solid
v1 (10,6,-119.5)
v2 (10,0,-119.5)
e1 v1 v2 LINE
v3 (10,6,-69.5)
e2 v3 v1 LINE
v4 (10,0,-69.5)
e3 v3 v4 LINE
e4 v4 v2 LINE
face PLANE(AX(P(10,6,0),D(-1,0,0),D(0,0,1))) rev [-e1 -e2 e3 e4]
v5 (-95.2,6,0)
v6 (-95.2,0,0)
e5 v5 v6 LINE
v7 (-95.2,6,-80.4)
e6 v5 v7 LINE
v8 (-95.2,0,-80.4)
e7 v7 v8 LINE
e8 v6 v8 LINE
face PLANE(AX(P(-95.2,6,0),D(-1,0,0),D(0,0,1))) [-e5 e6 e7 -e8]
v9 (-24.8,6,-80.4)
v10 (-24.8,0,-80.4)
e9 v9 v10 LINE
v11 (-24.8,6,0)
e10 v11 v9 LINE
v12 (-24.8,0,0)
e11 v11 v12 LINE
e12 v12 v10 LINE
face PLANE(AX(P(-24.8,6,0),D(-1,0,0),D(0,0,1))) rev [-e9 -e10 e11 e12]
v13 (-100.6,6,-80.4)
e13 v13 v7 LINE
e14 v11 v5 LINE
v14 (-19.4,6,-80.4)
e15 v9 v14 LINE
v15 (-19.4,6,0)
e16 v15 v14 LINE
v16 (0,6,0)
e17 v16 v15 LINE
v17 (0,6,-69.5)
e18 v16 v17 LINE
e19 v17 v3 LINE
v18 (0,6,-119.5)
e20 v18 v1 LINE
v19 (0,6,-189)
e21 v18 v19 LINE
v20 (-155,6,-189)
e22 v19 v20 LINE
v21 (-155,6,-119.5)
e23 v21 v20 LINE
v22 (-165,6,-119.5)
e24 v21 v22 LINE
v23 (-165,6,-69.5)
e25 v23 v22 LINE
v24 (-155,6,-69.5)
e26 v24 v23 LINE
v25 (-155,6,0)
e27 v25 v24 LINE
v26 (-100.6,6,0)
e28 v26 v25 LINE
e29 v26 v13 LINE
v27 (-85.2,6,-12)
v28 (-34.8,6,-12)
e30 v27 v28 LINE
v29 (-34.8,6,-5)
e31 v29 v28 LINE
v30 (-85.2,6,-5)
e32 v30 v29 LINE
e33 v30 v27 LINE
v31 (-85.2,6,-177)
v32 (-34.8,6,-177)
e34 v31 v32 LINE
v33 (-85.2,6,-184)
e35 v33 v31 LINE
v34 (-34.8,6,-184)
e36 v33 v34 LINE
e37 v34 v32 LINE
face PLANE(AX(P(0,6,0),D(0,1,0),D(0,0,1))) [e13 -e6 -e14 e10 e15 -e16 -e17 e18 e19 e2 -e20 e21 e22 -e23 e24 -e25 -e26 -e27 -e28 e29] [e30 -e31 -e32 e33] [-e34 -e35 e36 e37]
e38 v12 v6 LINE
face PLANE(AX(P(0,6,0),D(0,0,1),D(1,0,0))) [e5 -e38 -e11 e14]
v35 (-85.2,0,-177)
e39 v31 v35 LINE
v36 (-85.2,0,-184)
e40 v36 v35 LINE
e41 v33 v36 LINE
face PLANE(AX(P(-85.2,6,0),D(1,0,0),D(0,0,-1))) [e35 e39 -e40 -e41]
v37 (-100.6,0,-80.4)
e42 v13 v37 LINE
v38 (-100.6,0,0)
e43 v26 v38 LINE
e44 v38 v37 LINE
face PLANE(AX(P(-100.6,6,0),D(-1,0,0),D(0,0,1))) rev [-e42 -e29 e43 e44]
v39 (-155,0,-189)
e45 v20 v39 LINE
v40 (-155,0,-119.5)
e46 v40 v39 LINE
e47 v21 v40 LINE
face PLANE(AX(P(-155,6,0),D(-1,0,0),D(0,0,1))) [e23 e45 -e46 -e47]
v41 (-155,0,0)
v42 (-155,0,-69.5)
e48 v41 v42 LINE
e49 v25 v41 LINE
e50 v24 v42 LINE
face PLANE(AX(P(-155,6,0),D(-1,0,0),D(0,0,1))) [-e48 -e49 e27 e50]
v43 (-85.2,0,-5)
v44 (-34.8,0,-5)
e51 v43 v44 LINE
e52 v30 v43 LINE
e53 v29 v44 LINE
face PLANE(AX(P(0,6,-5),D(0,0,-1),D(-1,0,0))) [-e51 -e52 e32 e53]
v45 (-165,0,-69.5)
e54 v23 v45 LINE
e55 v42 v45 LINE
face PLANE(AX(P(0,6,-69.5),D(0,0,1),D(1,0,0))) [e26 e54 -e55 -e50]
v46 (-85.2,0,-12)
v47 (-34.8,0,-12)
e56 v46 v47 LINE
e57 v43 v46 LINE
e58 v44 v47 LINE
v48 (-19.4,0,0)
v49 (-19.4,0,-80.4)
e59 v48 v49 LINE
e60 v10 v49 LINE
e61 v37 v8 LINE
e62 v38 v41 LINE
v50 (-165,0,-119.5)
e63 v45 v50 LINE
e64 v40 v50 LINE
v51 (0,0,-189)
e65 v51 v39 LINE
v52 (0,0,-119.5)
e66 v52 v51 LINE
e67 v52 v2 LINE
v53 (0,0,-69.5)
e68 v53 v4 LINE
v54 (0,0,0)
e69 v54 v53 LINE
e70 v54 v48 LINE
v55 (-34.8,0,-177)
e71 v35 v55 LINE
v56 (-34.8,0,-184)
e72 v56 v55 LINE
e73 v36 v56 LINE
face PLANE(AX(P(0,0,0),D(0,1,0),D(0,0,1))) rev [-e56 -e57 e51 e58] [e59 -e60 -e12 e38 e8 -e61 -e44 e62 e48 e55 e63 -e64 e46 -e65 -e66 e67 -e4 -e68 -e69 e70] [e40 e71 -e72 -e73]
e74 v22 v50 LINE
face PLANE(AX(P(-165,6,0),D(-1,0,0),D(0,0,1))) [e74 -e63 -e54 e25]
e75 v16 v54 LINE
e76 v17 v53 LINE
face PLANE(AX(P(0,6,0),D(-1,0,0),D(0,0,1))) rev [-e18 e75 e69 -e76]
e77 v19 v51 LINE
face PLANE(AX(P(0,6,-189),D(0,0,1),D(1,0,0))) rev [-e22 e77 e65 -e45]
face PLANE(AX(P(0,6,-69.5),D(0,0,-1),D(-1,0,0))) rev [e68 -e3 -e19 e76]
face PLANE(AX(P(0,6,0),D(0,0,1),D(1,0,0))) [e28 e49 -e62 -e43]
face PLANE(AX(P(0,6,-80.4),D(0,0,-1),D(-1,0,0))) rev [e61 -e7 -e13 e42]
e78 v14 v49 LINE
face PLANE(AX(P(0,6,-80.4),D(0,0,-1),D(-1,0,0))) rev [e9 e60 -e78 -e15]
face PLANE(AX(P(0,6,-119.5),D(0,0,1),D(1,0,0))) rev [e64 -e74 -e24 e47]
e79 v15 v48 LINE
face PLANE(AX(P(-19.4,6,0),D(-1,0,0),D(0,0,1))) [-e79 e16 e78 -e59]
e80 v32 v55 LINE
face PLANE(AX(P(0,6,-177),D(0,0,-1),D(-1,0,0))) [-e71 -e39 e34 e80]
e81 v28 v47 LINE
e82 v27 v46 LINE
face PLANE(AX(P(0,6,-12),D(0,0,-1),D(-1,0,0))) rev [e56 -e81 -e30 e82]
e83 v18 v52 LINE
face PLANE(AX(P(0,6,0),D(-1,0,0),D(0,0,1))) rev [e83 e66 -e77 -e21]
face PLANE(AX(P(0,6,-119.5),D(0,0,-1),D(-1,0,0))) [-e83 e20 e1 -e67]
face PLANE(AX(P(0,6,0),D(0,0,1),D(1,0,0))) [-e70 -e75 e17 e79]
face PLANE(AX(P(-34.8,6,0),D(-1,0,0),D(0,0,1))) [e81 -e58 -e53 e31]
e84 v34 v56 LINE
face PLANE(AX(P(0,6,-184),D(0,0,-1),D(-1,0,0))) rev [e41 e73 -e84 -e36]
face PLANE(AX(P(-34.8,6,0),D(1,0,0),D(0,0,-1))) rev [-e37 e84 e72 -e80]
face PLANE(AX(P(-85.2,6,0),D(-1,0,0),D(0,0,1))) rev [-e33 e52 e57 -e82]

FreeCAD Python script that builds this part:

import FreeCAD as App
import Part
import Sketcher
Q = App.Units.Quantity

doc = App.newDocument("Part")
params = doc.addObject("Spreadsheet::Sheet", "Params")
for row, (alias, value) in enumerate([
    ("sketch1_width", "10 mm"),
    ("sketch1_width2", "155 mm"),
    ("sketch1_height", "50 mm"),
    ("sketch1_height2", "7 mm"),
    ("sketch1_width3", "19.4 mm"),
    ("pad1_length", "6 mm"),
], start=1):
    params.set(f"A{row}", alias)
    params.set(f"B{row}", "=" + value)
    params.setAlias(f"B{row}", alias)

body = doc.addObject("PartDesign::Body", "Body")

sketch1 = doc.addObject("Sketcher::SketchObject", "Sketch")
body.addObject(sketch1)
sketch1.AttachmentSupport = (doc.XZ_Plane, [""])
sketch1.MapMode = "FlatFace"
sketch1.addGeometry([
    Part.LineSegment(App.Vector(-19, 0, 0), App.Vector(0, 0, 0)),
    Part.LineSegment(App.Vector(0, 0, 0), App.Vector(0, -70, 0)),
    Part.LineSegment(App.Vector(0, -70, 0), App.Vector(10, -70, 0)),
    Part.LineSegment(App.Vector(10, -70, 0), App.Vector(10, -120, 0)),
    Part.LineSegment(App.Vector(10, -120, 0), App.Vector(0, -120, 0)),
    Part.LineSegment(App.Vector(0, -120, 0), App.Vector(0, -189, 0)),
    Part.LineSegment(App.Vector(0, -189, 0), App.Vector(-155, -189, 0)),
    Part.LineSegment(App.Vector(-155, -189, 0), App.Vector(-155, -120, 0)),
    Part.LineSegment(App.Vector(-155, -120, 0), App.Vector(-165, -120, 0)),
    Part.LineSegment(App.Vector(-165, -120, 0), App.Vector(-165, -70, 0)),
    Part.LineSegment(App.Vector(-165, -70, 0), App.Vector(-155, -70, 0)),
    Part.LineSegment(App.Vector(-155, -70, 0), App.Vector(-155, 0, 0)),
    Part.LineSegment(App.Vector(-155, 0, 0), App.Vector(-101, 0, 0)),
    Part.LineSegment(App.Vector(-101, 0, 0), App.Vector(-101, -80, 0)),
    Part.LineSegment(App.Vector(-101, -80, 0), App.Vector(-95, -80, 0)),
    Part.LineSegment(App.Vector(-95, -80, 0), App.Vector(-95, 0, 0)),
    Part.LineSegment(App.Vector(-95, 0, 0), App.Vector(-25, 0, 0)),
    Part.LineSegment(App.Vector(-25, 0, 0), App.Vector(-25, -80, 0)),
    Part.LineSegment(App.Vector(-25, -80, 0), App.Vector(-19, -80, 0)),
    Part.LineSegment(App.Vector(-19, -80, 0), App.Vector(-19, 0, 0)),
    Part.LineSegment(App.Vector(-35, -5, 0), App.Vector(-85, -5, 0)),
    Part.LineSegment(App.Vector(-85, -5, 0), App.Vector(-85, -12, 0)),
    Part.LineSegment(App.Vector(-85, -12, 0), App.Vector(-35, -12, 0)),
    Part.LineSegment(App.Vector(-35, -12, 0), App.Vector(-35, -5, 0)),
    Part.LineSegment(App.Vector(-35, -177, 0), App.Vector(-85, -177, 0)),
    Part.LineSegment(App.Vector(-85, -177, 0), App.Vector(-85, -184, 0)),
    Part.LineSegment(App.Vector(-85, -184, 0), App.Vector(-35, -184, 0)),
    Part.LineSegment(App.Vector(-35, -184, 0), App.Vector(-35, -177, 0)),
], False)
sketch1.addConstraint([
    Sketcher.Constraint("Coincident", 0, 2, 1, 1),
    Sketcher.Constraint("Coincident", 1, 2, 2, 1),
    Sketcher.Constraint("Coincident", 2, 2, 3, 1),
    Sketcher.Constraint("Coincident", 3, 2, 4, 1),
    Sketcher.Constraint("Coincident", 4, 2, 5, 1),
    Sketcher.Constraint("Coincident", 5, 2, 6, 1),
    Sketcher.Constraint("Coincident", 6, 2, 7, 1),
    Sketcher.Constraint("Coincident", 7, 2, 8, 1),
    Sketcher.Constraint("Coincident", 8, 2, 9, 1),
    Sketcher.Constraint("Coincident", 9, 2, 10, 1),
    Sketcher.Constraint("Coincident", 10, 2, 11, 1),
    Sketcher.Constraint("Coincident", 11, 2, 12, 1),
    Sketcher.Constraint("Coincident", 12, 2, 13, 1),
    Sketcher.Constraint("Coincident", 13, 2, 14, 1),
    Sketcher.Constraint("Coincident", 14, 2, 15, 1),
    Sketcher.Constraint("Coincident", 15, 2, 16, 1),
    Sketcher.Constraint("Coincident", 16, 2, 17, 1),
    Sketcher.Constraint("Coincident", 17, 2, 18, 1),
    Sketcher.Constraint("Coincident", 18, 2, 19, 1),
    Sketcher.Constraint("Coincident", 19, 2, 0, 1),
    Sketcher.Constraint("Coincident", 20, 2, 21, 1),
    Sketcher.Constraint("Coincident", 21, 2, 22, 1),
    Sketcher.Constraint("Coincident", 22, 2, 23, 1),
    Sketcher.Constraint("Coincident", 23, 2, 20, 1),
    Sketcher.Constraint("Coincident", 24, 2, 25, 1),
    Sketcher.Constraint("Coincident", 25, 2, 26, 1),
    Sketcher.Constraint("Coincident", 26, 2, 27, 1),
    Sketcher.Constraint("Coincident", 27, 2, 24, 1),
    Sketcher.Constraint("Horizontal", 0),
    Sketcher.Constraint("Vertical", 1),
    Sketcher.Constraint("Horizontal", 2),
    Sketcher.Constraint("Vertical", 3),
    Sketcher.Constraint("Horizontal", 4),
    Sketcher.Constraint("Vertical", 5),
    Sketcher.Constraint("Horizontal", 6),
    Sketcher.Constraint("Vertical", 7),
    Sketcher.Constraint("Horizontal", 8),
    Sketcher.Constraint("Vertical", 9),
    Sketcher.Constraint("Horizontal", 10),
    Sketcher.Constraint("Vertical", 11),
    Sketcher.Constraint("Horizontal", 12),
    Sketcher.Constraint("Vertical", 13),
    Sketcher.Constraint("Horizontal", 14),
    Sketcher.Constraint("Vertical", 15),
    Sketcher.Constraint("Horizontal", 16),
    Sketcher.Constraint("Vertical", 17),
    Sketcher.Constraint("Horizontal", 18),
    Sketcher.Constraint("Vertical", 19),
    Sketcher.Constraint("Horizontal", 20),
    Sketcher.Constraint("Vertical", 21),
    Sketcher.Constraint("Horizontal", 22),
    Sketcher.Constraint("Vertical", 23),
    Sketcher.Constraint("Horizontal", 24),
    Sketcher.Constraint("Vertical", 25),
    Sketcher.Constraint("Horizontal", 26),
    Sketcher.Constraint("Vertical", 27),
    Sketcher.Constraint("Coincident", 0, 2, -1, 1),
    Sketcher.Constraint("PointOnObject", 4, 2, -2),
    Sketcher.Constraint("PointOnObject", 11, 2, -1),
    Sketcher.Constraint("PointOnObject", 15, 2, -1),
    Sketcher.Constraint("Horizontal", 4, 2, 7, 2),
    Sketcher.Constraint("Horizontal", 2, 2, 9, 2),
    Sketcher.Constraint("Horizontal", 14, 2, 17, 2),
    Sketcher.Constraint("Vertical", 7, 2, 10, 2),
    Sketcher.Constraint("Vertical", 21, 2, 24, 2),
    Sketcher.Constraint("Vertical", 23, 2, 26, 2),
    Sketcher.Constraint("Equal", 4, 8),
    Sketcher.Constraint("Equal", 14, 18),
    Sketcher.Constraint("Equal", 1, 5),
    Sketcher.Constraint("Equal", 23, 25),
    Sketcher.Constraint("DistanceX", 2, 1, 2, 2, Q("10 mm")),
    Sketcher.Constraint("DistanceX", 6, 2, 6, 1, Q("155 mm")),
    Sketcher.Constraint("DistanceY", 3, 2, 3, 1, Q("50 mm")),
    Sketcher.Constraint("DistanceY", 21, 2, 21, 1, Q("7 mm")),
    Sketcher.Constraint("DistanceX", 0, 1, 0, 2, Q("19.4 mm")),
    Sketcher.Constraint("DistanceX", 12, 1, 12, 2, Q("54.4 mm")),
    Sketcher.Constraint("DistanceX", 14, 1, 14, 2, Q("5.4 mm")),
    Sketcher.Constraint("DistanceX", 20, 2, 20, 1, Q("50.4 mm")),
    Sketcher.Constraint("DistanceY", 1, 2, 1, 1, Q("69.5 mm")),
    Sketcher.Constraint("DistanceY", 13, 2, 13, 1, Q("80.4 mm")),
    Sketcher.Constraint("DistanceY", 20, 2, -1, 1, Q("5 mm")),
    Sketcher.Constraint("DistanceY", 24, 2, -1, 1, Q("177 mm")),
    Sketcher.Constraint("DistanceX", 15, 2, 20, 2, Q("10 mm")),
])
sketch1.setExpression("Constraints[70]", "Params.sketch1_width")
sketch1.setExpression("Constraints[71]", "Params.sketch1_width2")
sketch1.setExpression("Constraints[72]", "Params.sketch1_height")
sketch1.setExpression("Constraints[73]", "Params.sketch1_height2")
sketch1.setExpression("Constraints[74]", "Params.sketch1_width3")
pad1 = doc.addObject("PartDesign::Pad", "Pad")
body.addObject(pad1)
pad1.Profile = sketch1
pad1.setExpression("Length", "Params.pad1_length")
pad1.Reversed = True

doc.recompute()
